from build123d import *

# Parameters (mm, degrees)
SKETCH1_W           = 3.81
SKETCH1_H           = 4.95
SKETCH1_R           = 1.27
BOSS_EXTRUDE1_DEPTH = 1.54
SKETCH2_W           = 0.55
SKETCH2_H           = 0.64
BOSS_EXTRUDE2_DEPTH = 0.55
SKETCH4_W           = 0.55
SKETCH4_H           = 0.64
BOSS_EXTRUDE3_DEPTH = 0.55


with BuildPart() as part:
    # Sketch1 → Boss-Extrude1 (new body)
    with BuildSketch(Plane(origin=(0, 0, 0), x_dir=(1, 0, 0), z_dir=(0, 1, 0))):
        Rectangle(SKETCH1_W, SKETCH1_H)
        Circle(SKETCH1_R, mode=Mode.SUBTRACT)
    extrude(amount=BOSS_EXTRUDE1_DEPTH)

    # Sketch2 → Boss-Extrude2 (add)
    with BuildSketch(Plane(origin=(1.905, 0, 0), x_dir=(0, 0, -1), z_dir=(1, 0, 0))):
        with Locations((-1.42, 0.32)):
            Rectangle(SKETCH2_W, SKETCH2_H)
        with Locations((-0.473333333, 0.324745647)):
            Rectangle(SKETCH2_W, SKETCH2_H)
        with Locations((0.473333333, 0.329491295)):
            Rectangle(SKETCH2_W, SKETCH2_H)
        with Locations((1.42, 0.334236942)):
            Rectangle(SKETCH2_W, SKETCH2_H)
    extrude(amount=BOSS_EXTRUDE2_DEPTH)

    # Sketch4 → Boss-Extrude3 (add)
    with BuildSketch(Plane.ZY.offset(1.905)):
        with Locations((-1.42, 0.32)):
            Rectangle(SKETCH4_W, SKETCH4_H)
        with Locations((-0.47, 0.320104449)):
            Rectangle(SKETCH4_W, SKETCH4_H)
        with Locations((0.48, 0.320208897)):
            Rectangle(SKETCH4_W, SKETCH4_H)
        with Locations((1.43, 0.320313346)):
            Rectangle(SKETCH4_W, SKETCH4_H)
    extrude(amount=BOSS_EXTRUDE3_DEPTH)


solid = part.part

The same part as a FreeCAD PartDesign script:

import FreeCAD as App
import Part
import Sketcher
Q = App.Units.Quantity


def add_polygon(sketch, points):
    """Adds a closed chain of lines whose ends are joined by coincident constraints."""
    first, n = sketch.GeometryCount, len(points)
    for a, b in zip(points, points[1:] + points[:1]):
        sketch.addGeometry(Part.LineSegment(App.Vector(*a, 0), App.Vector(*b, 0)), False)
    for i in range(n):
        sketch.addConstraint(Sketcher.Constraint("Coincident", first + i, 2, first + (i + 1) % n, 1))

doc = App.newDocument("Part")
body = doc.addObject("PartDesign::Body", "Body")

# Sketch on XZ plane
sketch1 = body.newObject("Sketcher::SketchObject", "Sketch")
sketch1.AttachmentSupport = (doc.getObject("XZ_Plane"), [""])
sketch1.MapMode = "FlatFace"
add_polygon(sketch1, [(-1.905, -2.475), (-1.905, 2.475), (1.905, 2.475), (1.905, -2.475)])  # lines 0-3
sketch1.addGeometry(Part.Circle(App.Vector(0, 0, 0), App.Vector(0, 0, 1), 1.27), False)  # 4
sketch1.addConstraint(Sketcher.Constraint("Vertical", 0))
sketch1.addConstraint(Sketcher.Constraint("Horizontal", 1))
sketch1.addConstraint(Sketcher.Constraint("Vertical", 2))
sketch1.addConstraint(Sketcher.Constraint("Horizontal", 3))
sketch1.addConstraint(Sketcher.Constraint("Coincident", 4, 3, -1, 1))
sketch1.addConstraint(Sketcher.Constraint("Symmetric", 0, 2, 2, 2, -1, 1))
sketch1.addConstraint(Sketcher.Constraint("Diameter", 4, Q("0.1 in")))
sketch1.addConstraint(Sketcher.Constraint("DistanceX", 1, 1, 1, 2, Q("0.15 in")))
sketch1.addConstraint(Sketcher.Constraint("DistanceY", 0, 1, 0, 2, 4.95))
pad1 = body.newObject("PartDesign::Pad", "Pad")
pad1.Profile = sketch1
pad1.Length = 1.54
pad1.Reversed = True

# Sketch on YZ plane
sketch2 = body.newObject("Sketcher::SketchObject", "Sketch001")
sketch2.AttachmentSupport = (doc.getObject("YZ_Plane"), [""])
sketch2.MapMode = "FlatFace"
sketch2.AttachmentOffset = App.Placement(App.Vector(0, 0, 0.075 * 25.4), App.Rotation())
add_polygon(sketch2, [(0.64, 1.695), (0, 1.695), (0, 1.145), (0.64, 1.145)])  # lines 0-3
add_polygon(sketch2, [(0.644746, 0.748333), (0.004746, 0.748333), (0.004746, 0.198333), (0.644746, 0.198333)])  # lines 4-7
add_polygon(sketch2, [(0.649491, -0.198333), (0.009491, -0.198333), (0.009491, -0.748333), (0.649491, -0.748333)])  # lines 8-11
add_polygon(sketch2, [(0.654237, -1.145), (0.014237, -1.145), (0.014237, -1.695), (0.654237, -1.695)])  # lines 12-15
sketch2.addConstraint(Sketcher.Constraint("Horizontal", 0))
sketch2.addConstraint(Sketcher.Constraint("Vertical", 1))
sketch2.addConstraint(Sketcher.Constraint("Horizontal", 2))
sketch2.addConstraint(Sketcher.Constraint("Vertical", 3))
sketch2.addConstraint(Sketcher.Constraint("Horizontal", 4))
sketch2.addConstraint(Sketcher.Constraint("Vertical", 5))
sketch2.addConstraint(Sketcher.Constraint("Horizontal", 6))
sketch2.addConstraint(Sketcher.Constraint("Vertical", 7))
sketch2.addConstraint(Sketcher.Constraint("Horizontal", 8))
sketch2.addConstraint(Sketcher.Constraint("Vertical", 9))
sketch2.addConstraint(Sketcher.Constraint("Horizontal", 10))
sketch2.addConstraint(Sketcher.Constraint("Vertical", 11))
sketch2.addConstraint(Sketcher.Constraint("Horizontal", 12))
sketch2.addConstraint(Sketcher.Constraint("Vertical", 13))
sketch2.addConstraint(Sketcher.Constraint("Horizontal", 14))
sketch2.addConstraint(Sketcher.Constraint("Vertical", 15))
sketch2.addConstraint(Sketcher.Constraint("PointOnObject", 0, 2, -2))
sketch2.addConstraint(Sketcher.Constraint("Equal", 2, 4))
sketch2.addConstraint(Sketcher.Constraint("Equal", 6, 8))
sketch2.addConstraint(Sketcher.Constraint("Equal", 10, 12))
sketch2.addConstraint(Sketcher.Constraint("Equal", 3, 5))
sketch2.addConstraint(Sketcher.Constraint("Equal", 7, 9))
sketch2.addConstraint(Sketcher.Constraint("Equal", 11, 13))
sketch2.addConstraint(Sketcher.Constraint("DistanceX", 0, 2, 0, 1, 0.64))
sketch2.addConstraint(Sketcher.Constraint("DistanceY", 1, 2, 1, 1, 0.55))
sketch2.addConstraint(Sketcher.Constraint("DistanceY", -1, 1, 0, 2, 1.695))
sketch2.addConstraint(Sketcher.Constraint("DistanceY", 12, 2, -1, 1, 1.145))
sketch2.addConstraint(Sketcher.Constraint("DistanceX", -1, 1, 8, 2, 0.009491))
sketch2.addConstraint(Sketcher.Constraint("DistanceX", 5, 2, 12, 2, 0.009491))
sketch2.addConstraint(Sketcher.Constraint("DistanceX", -1, 1, 4, 2, 0.004746))
sketch2.addConstraint(Sketcher.Constraint("DistanceY", -1, 1, 4, 2, 0.748333))
sketch2.addConstraint(Sketcher.Constraint("DistanceY", 8, 2, -1, 1, 0.198333))
pad2 = body.newObject("PartDesign::Pad", "Pad001")
pad2.Profile = sketch2
pad2.Length = 0.55

# Sketch on YZ plane
sketch3 = body.newObject("Sketcher::SketchObject", "Sketch002")
sketch3.AttachmentSupport = (doc.getObject("YZ_Plane"), [""])
sketch3.MapMode = "FlatFace"
sketch3.AttachmentOffset = App.Placement(App.Vector(0, 0, -0.075 * 25.4), App.Rotation())
add_polygon(sketch3, [(0.64, -1.695), (0, -1.695), (0, -1.145), (0.64, -1.145)])  # lines 0-3
add_polygon(sketch3, [(0.640104, -0.745), (0.000104, -0.745), (0.000104, -0.195), (0.640104, -0.195)])  # lines 4-7
add_polygon(sketch3, [(0.640209, 0.205), (0.000209, 0.205), (0.000209, 0.755), (0.640209, 0.755)])  # lines 8-11
add_polygon(sketch3, [(0.640313, 1.155), (0.000313, 1.155), (0.000313, 1.705), (0.640313, 1.705)])  # lines 12-15
sketch3.addConstraint(Sketcher.Constraint("Horizontal", 0))
sketch3.addConstraint(Sketcher.Constraint("Vertical", 1))
sketch3.addConstraint(Sketcher.Constraint("Horizontal", 2))
sketch3.addConstraint(Sketcher.Constraint("Vertical", 3))
sketch3.addConstraint(Sketcher.Constraint("Horizontal", 4))
sketch3.addConstraint(Sketcher.Constraint("Vertical", 5))
sketch3.addConstraint(Sketcher.Constraint("Horizontal", 6))
sketch3.addConstraint(Sketcher.Constraint("Vertical", 7))
sketch3.addConstraint(Sketcher.Constraint("Horizontal", 8))
sketch3.addConstraint(Sketcher.Constraint("Vertical", 9))
sketch3.addConstraint(Sketcher.Constraint("Horizontal", 10))
sketch3.addConstraint(Sketcher.Constraint("Vertical", 11))
sketch3.addConstraint(Sketcher.Constraint("Horizontal", 12))
sketch3.addConstraint(Sketcher.Constraint("Vertical", 13))
sketch3.addConstraint(Sketcher.Constraint("Horizontal", 14))
sketch3.addConstraint(Sketcher.Constraint("Vertical", 15))
sketch3.addConstraint(Sketcher.Constraint("PointOnObject", 0, 2, -2))
sketch3.addConstraint(Sketcher.Constraint("Equal", 2, 4))
sketch3.addConstraint(Sketcher.Constraint("Equal", 6, 8))
sketch3.addConstraint(Sketcher.Constraint("Equal", 10, 12))
sketch3.addConstraint(Sketcher.Constraint("Equal", 3, 5))
sketch3.addConstraint(Sketcher.Constraint("Equal", 7, 9))
sketch3.addConstraint(Sketcher.Constraint("Equal", 11, 13))
sketch3.addConstraint(Sketcher.Constraint("DistanceX", 0, 2, 0, 1, 0.64))
sketch3.addConstraint(Sketcher.Constraint("DistanceY", 1, 1, 1, 2, 0.55))
sketch3.addConstraint(Sketcher.Constraint("DistanceY", 0, 2, -1, 1, 1.695))
sketch3.addConstraint(Sketcher.Constraint("DistanceY", 4, 2, -1, 1, 0.745))
sketch3.addConstraint(Sketcher.Constraint("DistanceY", -1, 1, 8, 2, 0.205))
sketch3.addConstraint(Sketcher.Constraint("DistanceY", -1, 1, 12, 2, 1.155))
sketch3.addConstraint(Sketcher.Constraint("DistanceX", -1, 1, 8, 2, 0.000209))
sketch3.addConstraint(Sketcher.Constraint("DistanceX", 5, 2, 12, 2, 0.000209))
sketch3.addConstraint(Sketcher.Constraint("DistanceX", -1, 1, 4, 2, 0.000104))
pad3 = body.newObject("PartDesign::Pad", "Pad002")
pad3.Profile = sketch3
pad3.Length = 0.55
pad3.Reversed = True

doc.recompute()
